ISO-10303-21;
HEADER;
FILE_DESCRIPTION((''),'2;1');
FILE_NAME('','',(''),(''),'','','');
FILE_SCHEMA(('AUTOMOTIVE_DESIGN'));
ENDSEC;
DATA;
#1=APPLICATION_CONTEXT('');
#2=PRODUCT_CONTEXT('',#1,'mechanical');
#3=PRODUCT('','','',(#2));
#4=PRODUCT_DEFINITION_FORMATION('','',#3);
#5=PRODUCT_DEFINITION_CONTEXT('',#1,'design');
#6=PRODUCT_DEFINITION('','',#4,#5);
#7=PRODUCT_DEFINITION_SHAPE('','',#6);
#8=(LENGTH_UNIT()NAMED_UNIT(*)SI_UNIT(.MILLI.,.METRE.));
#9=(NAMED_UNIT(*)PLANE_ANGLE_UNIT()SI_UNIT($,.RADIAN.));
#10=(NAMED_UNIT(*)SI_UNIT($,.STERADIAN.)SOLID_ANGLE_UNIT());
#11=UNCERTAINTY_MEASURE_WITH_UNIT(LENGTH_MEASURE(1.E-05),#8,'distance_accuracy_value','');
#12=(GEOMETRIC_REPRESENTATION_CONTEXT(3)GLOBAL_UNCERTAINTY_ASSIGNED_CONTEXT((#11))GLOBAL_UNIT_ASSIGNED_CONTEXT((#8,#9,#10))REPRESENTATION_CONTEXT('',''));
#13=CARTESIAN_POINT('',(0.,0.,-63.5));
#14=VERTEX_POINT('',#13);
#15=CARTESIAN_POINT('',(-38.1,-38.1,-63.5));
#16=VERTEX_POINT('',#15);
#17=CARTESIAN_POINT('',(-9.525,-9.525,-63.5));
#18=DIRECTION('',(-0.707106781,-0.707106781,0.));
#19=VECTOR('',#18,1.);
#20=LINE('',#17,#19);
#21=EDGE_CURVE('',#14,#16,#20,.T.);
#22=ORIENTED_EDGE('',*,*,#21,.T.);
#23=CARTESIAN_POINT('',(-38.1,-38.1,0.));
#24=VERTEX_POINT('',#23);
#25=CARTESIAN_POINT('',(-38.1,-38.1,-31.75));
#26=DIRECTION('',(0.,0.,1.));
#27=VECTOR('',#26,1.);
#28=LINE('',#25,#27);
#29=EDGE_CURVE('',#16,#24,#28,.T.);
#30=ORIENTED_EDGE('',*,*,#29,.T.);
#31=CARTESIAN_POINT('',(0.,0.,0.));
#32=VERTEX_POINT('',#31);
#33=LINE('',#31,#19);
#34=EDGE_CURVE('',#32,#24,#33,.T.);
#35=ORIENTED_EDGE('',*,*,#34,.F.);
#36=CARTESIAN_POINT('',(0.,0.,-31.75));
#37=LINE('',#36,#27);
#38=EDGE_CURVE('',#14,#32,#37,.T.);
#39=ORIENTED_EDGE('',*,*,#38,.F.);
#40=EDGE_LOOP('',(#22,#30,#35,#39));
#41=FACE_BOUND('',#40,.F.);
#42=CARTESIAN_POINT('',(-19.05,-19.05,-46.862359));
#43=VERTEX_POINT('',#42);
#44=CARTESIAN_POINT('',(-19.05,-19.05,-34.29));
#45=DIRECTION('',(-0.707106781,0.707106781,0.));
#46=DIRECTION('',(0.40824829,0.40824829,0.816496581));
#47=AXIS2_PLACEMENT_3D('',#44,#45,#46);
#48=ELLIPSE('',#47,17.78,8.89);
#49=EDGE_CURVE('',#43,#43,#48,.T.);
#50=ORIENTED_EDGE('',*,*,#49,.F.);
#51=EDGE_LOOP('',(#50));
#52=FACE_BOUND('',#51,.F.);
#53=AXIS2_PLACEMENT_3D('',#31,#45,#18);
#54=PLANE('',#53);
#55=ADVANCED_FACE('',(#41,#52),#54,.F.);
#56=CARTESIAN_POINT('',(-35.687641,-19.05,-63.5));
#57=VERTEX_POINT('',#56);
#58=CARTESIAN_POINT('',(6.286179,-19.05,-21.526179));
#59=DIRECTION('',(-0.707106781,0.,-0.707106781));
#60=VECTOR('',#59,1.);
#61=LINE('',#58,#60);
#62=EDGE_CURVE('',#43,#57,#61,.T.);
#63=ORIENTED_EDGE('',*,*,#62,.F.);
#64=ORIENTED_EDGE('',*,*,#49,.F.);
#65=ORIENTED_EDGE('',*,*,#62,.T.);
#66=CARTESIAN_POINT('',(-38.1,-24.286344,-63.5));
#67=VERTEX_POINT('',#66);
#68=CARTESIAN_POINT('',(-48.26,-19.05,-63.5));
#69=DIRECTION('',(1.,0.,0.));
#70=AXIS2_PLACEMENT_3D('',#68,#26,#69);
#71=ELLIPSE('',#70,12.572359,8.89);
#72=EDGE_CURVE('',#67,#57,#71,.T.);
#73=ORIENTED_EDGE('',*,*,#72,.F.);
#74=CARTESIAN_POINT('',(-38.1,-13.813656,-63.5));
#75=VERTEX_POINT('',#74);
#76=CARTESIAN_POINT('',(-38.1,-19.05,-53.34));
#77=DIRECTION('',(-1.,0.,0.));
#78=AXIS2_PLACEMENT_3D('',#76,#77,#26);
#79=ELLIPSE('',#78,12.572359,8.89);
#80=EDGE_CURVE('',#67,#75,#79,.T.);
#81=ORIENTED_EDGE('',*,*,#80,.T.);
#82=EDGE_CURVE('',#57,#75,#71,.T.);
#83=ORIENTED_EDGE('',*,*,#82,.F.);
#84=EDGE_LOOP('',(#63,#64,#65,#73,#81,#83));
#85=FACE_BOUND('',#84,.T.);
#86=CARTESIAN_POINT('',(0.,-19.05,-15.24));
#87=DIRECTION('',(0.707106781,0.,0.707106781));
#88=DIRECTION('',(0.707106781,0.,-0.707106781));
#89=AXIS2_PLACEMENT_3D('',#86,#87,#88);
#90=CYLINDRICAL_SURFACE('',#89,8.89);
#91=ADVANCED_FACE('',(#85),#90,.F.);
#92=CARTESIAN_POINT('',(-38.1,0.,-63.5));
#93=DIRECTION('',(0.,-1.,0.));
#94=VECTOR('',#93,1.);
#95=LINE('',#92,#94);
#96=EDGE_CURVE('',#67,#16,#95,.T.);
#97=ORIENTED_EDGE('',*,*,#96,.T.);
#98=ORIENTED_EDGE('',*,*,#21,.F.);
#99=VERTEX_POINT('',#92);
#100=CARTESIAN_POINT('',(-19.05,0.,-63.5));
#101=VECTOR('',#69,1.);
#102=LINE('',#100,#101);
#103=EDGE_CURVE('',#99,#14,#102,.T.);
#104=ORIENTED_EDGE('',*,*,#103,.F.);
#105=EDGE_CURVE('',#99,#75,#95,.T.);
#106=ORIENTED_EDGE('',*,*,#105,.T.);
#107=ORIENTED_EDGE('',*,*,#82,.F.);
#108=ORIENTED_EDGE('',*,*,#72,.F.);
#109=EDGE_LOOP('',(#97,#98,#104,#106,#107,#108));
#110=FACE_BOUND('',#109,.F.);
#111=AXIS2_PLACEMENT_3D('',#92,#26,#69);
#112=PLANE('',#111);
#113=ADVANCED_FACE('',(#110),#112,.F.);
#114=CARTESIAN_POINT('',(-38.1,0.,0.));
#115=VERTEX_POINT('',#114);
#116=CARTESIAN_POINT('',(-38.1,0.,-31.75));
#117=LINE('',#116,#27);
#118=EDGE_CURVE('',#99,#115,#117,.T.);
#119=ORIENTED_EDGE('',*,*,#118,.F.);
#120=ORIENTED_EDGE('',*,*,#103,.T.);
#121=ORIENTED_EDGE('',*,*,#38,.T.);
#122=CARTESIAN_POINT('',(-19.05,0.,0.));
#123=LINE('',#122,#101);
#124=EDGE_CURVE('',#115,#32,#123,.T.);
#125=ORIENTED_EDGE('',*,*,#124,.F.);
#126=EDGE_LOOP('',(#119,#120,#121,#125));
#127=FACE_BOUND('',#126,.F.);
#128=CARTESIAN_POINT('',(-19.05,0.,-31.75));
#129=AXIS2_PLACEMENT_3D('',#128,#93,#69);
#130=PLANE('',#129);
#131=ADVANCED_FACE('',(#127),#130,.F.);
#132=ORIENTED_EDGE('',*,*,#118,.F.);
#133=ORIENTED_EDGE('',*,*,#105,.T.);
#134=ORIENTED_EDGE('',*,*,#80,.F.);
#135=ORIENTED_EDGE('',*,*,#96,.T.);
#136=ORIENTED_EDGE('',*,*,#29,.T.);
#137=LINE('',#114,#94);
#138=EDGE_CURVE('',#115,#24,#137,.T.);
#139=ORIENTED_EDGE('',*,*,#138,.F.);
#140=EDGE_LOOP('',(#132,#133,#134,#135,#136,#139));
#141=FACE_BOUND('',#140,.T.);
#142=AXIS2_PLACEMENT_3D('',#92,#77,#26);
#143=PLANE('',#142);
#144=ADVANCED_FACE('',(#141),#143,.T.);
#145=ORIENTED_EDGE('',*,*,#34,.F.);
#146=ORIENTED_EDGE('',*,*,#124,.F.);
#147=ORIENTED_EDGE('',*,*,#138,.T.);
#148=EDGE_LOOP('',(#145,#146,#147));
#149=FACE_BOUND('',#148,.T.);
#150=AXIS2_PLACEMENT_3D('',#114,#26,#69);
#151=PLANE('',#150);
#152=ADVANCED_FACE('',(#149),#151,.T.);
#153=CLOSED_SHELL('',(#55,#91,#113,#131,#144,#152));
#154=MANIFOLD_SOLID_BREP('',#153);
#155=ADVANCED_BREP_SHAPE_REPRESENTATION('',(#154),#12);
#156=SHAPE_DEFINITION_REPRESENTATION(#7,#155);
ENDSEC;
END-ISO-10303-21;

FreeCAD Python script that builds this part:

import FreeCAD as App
import Part
import Sketcher
from FreeCAD import Vector
Q = App.Units.Quantity


def add_polygon(sketch, points):
    """Adds a closed chain of lines whose ends are joined by coincident constraints."""
    first, n = sketch.GeometryCount, len(points)
    for a, b in zip(points, points[1:] + points[:1]):
        sketch.addGeometry(Part.LineSegment(App.Vector(*a, 0), App.Vector(*b, 0)), False)
    for i in range(n):
        sketch.addConstraint(Sketcher.Constraint("Coincident", first + i, 2, first + (i + 1) % n, 1))

doc = App.newDocument("Part")
body = doc.addObject("PartDesign::Body", "Body")

# Sketch on XZ plane
sketch1 = body.newObject("Sketcher::SketchObject", "Sketch")
sketch1.AttachmentSupport = (doc.getObject("XZ_Plane"), [""])
sketch1.MapMode = "FlatFace"
add_polygon(sketch1, [(-38, 0), (-38, -64), (0, -64), (0, 0)])  # lines 0-3
sketch1.addConstraint(Sketcher.Constraint("Vertical", 0))
sketch1.addConstraint(Sketcher.Constraint("Horizontal", 1))
sketch1.addConstraint(Sketcher.Constraint("Vertical", 2))
sketch1.addConstraint(Sketcher.Constraint("Horizontal", 3))
sketch1.addConstraint(Sketcher.Constraint("Coincident", 2, 2, -1, 1))
sketch1.addConstraint(Sketcher.Constraint("DistanceX", 1, 1, 1, 2, Q("1.5 in")))
sketch1.addConstraint(Sketcher.Constraint("DistanceY", 0, 2, 0, 1, Q("2.5 in")))
pad1 = body.newObject("PartDesign::Pad", "Pad")
pad1.Profile = sketch1
pad1.Length = Q("1.5 in")

# Sketch on an angled plane
sketch2 = body.newObject("Sketcher::SketchObject", "Sketch001")
sketch2.Placement = App.Placement(Vector(-7.62, 0, -7.62), App.Rotation(Vector(0.707106781, 0, -0.707106781), Vector(0, -0.999999999, 0), Vector(-0.707106781, 0, -0.707106781), "ZXY"))
sketch2.addGeometry(Part.Circle(Vector(11, 19, 0), Vector(0, 0, 1), 9), False)
sketch2.addConstraint(Sketcher.Constraint("Diameter", 0, Q("0.7 in")))
sketch2.addConstraint(Sketcher.Constraint("DistanceY", -1, 1, 0, 3, Q("0.75 in")))
sketch2.addConstraint(Sketcher.Constraint("DistanceX", -1, 1, 0, 3, Q("10.776307 mm")))
pocket1 = body.newObject("PartDesign::Pocket", "Pocket")
pocket1.Profile = sketch2
pocket1.Type = "ThroughAll"
pocket1.Midplane = True

# Sketch on XY plane
sketch3 = body.newObject("Sketcher::SketchObject", "Sketch002")
sketch3.AttachmentSupport = (doc.getObject("XY_Plane"), [""])
sketch3.MapMode = "FlatFace"
add_polygon(sketch3, [(0, -38), (0, 0), (-38, -38)])  # lines 0-2
sketch3.addConstraint(Sketcher.Constraint("Vertical", 0))
sketch3.addConstraint(Sketcher.Constraint("Horizontal", 2))
sketch3.addConstraint(Sketcher.Constraint("Coincident", 0, 2, -1, 1))
sketch3.addConstraint(Sketcher.Constraint("Equal", 2, 0))
sketch3.addConstraint(Sketcher.Constraint("DistanceX", 2, 1, 2, 2, Q("1.5 in")))
pocket2 = body.newObject("PartDesign::Pocket", "Pocket001")
pocket2.Profile = sketch3
pocket2.Length = Q("3 in")

doc.recompute()
